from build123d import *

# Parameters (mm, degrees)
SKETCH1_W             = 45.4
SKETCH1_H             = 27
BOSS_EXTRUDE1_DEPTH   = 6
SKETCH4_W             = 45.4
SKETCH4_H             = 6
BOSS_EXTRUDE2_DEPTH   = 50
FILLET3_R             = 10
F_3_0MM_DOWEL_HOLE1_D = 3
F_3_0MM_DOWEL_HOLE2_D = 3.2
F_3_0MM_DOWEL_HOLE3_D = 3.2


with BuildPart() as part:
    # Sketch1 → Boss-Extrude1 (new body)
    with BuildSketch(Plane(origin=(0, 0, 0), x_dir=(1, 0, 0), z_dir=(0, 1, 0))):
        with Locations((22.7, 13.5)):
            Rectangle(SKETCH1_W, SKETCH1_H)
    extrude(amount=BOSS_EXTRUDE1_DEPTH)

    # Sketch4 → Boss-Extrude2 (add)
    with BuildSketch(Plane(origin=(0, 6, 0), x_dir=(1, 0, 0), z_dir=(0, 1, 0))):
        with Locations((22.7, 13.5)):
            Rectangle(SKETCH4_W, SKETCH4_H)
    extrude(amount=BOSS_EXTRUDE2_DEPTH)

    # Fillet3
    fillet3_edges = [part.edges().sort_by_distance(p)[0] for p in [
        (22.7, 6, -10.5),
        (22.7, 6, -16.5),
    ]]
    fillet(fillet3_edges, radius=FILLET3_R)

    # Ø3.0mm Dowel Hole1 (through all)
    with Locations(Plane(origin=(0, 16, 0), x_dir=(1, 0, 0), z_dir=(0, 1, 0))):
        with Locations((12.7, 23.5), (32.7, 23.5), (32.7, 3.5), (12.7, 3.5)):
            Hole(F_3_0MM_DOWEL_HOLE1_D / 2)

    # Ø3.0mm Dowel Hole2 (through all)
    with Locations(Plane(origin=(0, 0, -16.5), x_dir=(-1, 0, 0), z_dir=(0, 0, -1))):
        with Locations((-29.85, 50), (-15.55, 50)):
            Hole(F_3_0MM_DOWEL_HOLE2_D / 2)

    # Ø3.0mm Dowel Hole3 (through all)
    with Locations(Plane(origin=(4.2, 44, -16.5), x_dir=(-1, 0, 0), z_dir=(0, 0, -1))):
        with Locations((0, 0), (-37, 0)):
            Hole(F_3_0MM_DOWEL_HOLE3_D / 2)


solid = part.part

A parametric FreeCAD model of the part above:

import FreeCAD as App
import Part
import Sketcher

V = App.Vector


def edges_at(feature, points):
    """Names of the edges that pass closest to the given points."""
    edges = feature.Shape.Edges
    near = lambda p: min(range(len(edges)), key=lambda i: edges[i].distToShape(Part.Vertex(*p))[0])
    return sorted({f"Edge{near(p) + 1}" for p in points})

doc = App.newDocument("Part")
body = doc.addObject("PartDesign::Body", "Body")

# Sketch on XZ plane
sketch1 = body.newObject("Sketcher::SketchObject", "Sketch")
sketch1.AttachmentSupport = (doc.getObject("XZ_Plane"), [""])
sketch1.MapMode = "FlatFace"
sketch1.addGeometry([
    Part.LineSegment(V(0, -27, 0), V(0, 0, 0)),
    Part.LineSegment(V(0, 0, 0), V(45, 0, 0)),
    Part.LineSegment(V(45, 0, 0), V(45, -27, 0)),
    Part.LineSegment(V(45, -27, 0), V(0, -27, 0)),
], False)
sketch1.addConstraint([
    Sketcher.Constraint("Coincident", 0, 2, 1, 1),
    Sketcher.Constraint("Coincident", 1, 2, 2, 1),
    Sketcher.Constraint("Coincident", 2, 2, 3, 1),
    Sketcher.Constraint("Coincident", 3, 2, 0, 1),
    Sketcher.Constraint("Vertical", 0),
    Sketcher.Constraint("Horizontal", 1),
    Sketcher.Constraint("Vertical", 2),
    Sketcher.Constraint("Horizontal", 3),
    Sketcher.Constraint("Coincident", 0, 2, -1, 1),
    Sketcher.Constraint("DistanceY", 0, 1, 0, 2, 27.0),
    Sketcher.Constraint("DistanceX", 1, 1, 1, 2, 45.4),
])
pad1 = body.newObject("PartDesign::Pad", "Pad")
pad1.Profile = sketch1
pad1.Length = 6
pad1.Reversed = True

# Sketch on XZ plane
sketch2 = body.newObject("Sketcher::SketchObject", "Sketch001")
sketch2.AttachmentSupport = (doc.getObject("XZ_Plane"), [""])
sketch2.MapMode = "FlatFace"
sketch2.AttachmentOffset = App.Placement(V(0, 0, -6), App.Rotation())
sketch2.addGeometry([
    Part.LineSegment(V(0, -16, 0), V(0, -10, 0)),
    Part.LineSegment(V(0, -10, 0), V(45, -10, 0)),
    Part.LineSegment(V(45, -10, 0), V(45, -16, 0)),
    Part.LineSegment(V(45, -16, 0), V(0, -16, 0)),
], False)
sketch2.addConstraint([
    Sketcher.Constraint("Coincident", 0, 2, 1, 1),
    Sketcher.Constraint("Coincident", 1, 2, 2, 1),
    Sketcher.Constraint("Coincident", 2, 2, 3, 1),
    Sketcher.Constraint("Coincident", 3, 2, 0, 1),
    Sketcher.Constraint("Vertical", 0),
    Sketcher.Constraint("Horizontal", 1),
    Sketcher.Constraint("Vertical", 2),
    Sketcher.Constraint("Horizontal", 3),
    Sketcher.Constraint("PointOnObject", 0, 2, -2),
    Sketcher.Constraint("DistanceY", 0, 1, 0, 2, 6.0),
    Sketcher.Constraint("DistanceX", 1, 1, 1, 2, 45.4),
    Sketcher.Constraint("DistanceY", 0, 2, -1, 1, 10.5),
])
pad2 = body.newObject("PartDesign::Pad", "Pad001")
pad2.Profile = sketch2
pad2.Length = 50
pad2.Reversed = True
doc.recompute()

fillet = body.newObject("PartDesign::Fillet", "Fillet")
fillet.Base = (pad2, edges_at(pad2, [(22.7, 6, -10.5), (22.7, 6, -16.5)]))
fillet.Radius = 10

# Sketch on XZ plane
sketch3 = body.newObject("Sketcher::SketchObject", "Sketch002")
sketch3.AttachmentSupport = (doc.getObject("XZ_Plane"), [""])
sketch3.MapMode = "FlatFace"
sketch3.AttachmentOffset = App.Placement(V(0, 0, -16), App.Rotation())
sketch3.addGeometry([
    Part.Circle(V(12.7, -23.5, 0), V(0, 0, 1), 1.5),
    Part.Circle(V(32.7, -23.5, 0), V(0, 0, 1), 1.5),
    Part.Circle(V(32.7, -3.5, 0), V(0, 0, 1), 1.5),
    Part.Circle(V(12.7, -3.5, 0), V(0, 0, 1), 1.5),
], False)
sketch3.addConstraint([
    Sketcher.Constraint("Equal", 0, 1),
    Sketcher.Constraint("Equal", 1, 2),
    Sketcher.Constraint("Equal", 2, 3),
    Sketcher.Constraint("Horizontal", 0, 3, 1, 3),
    Sketcher.Constraint("Horizontal", 2, 3, 3, 3),
    Sketcher.Constraint("Vertical", 1, 3, 2, 3),
    Sketcher.Constraint("Vertical", 0, 3, 3, 3),
    Sketcher.Constraint("Diameter", 0, 3.0),
    Sketcher.Constraint("DistanceX", 0, 3, 1, 3, 20.0),
    Sketcher.Constraint("DistanceY", 1, 3, 2, 3, 20.0),
    Sketcher.Constraint("DistanceX", -1, 1, 0, 3, 12.7),
    Sketcher.Constraint("DistanceY", 0, 3, -1, 1, 23.5),
])
doc.recompute()
hole = body.newObject("PartDesign::Hole", "Hole")
hole.Profile = sketch3
hole.ThreadType = "None"
hole.Diameter = 3
hole.DepthType = "ThroughAll"
hole.Reversed = True

# Sketch on XY plane
sketch4 = body.newObject("Sketcher::SketchObject", "Sketch003")
sketch4.AttachmentSupport = (doc.getObject("XY_Plane"), [""])
sketch4.MapMode = "FlatFace"
sketch4.AttachmentOffset = App.Placement(V(0, 0, -16.5), App.Rotation())
sketch4.addGeometry([
    Part.Circle(V(29.9, 50, 0), V(0, 0, 1), 1.6),
    Part.Circle(V(15.6, 50, 0), V(0, 0, 1), 1.6),
], False)
sketch4.addConstraint([
    Sketcher.Constraint("Equal", 0, 1),
    Sketcher.Constraint("Horizontal", 0, 3, 1, 3),
    Sketcher.Constraint("Diameter", 0, 3.2),
    Sketcher.Constraint("DistanceY", -1, 1, 0, 3, 50.0),
    Sketcher.Constraint("DistanceX", 1, 3, 0, 3, 14.3),
    Sketcher.Constraint("DistanceX", -1, 1, 0, 3, 29.85),
])
doc.recompute()
hole2 = body.newObject("PartDesign::Hole", "Hole001")
hole2.Profile = sketch4
hole2.ThreadType = "None"
hole2.Diameter = 3.2
hole2.DepthType = "ThroughAll"
hole2.Reversed = True

# Sketch on XY plane
sketch5 = body.newObject("Sketcher::SketchObject", "Sketch004")
sketch5.AttachmentSupport = (doc.getObject("XY_Plane"), [""])
sketch5.MapMode = "FlatFace"
sketch5.AttachmentOffset = App.Placement(V(0, 0, -16.5), App.Rotation())
sketch5.addGeometry([
    Part.Circle(V(4.2, 44, 0), V(0, 0, 1), 1.6),
    Part.Circle(V(41.2, 44, 0), V(0, 0, 1), 1.6),
], False)
sketch5.addConstraint([
    Sketcher.Constraint("Equal", 0, 1),
    Sketcher.Constraint("Horizontal", 0, 3, 1, 3),
    Sketcher.Constraint("Diameter", 0, 3.2),
    Sketcher.Constraint("DistanceY", -1, 1, 0, 3, 44.0),
    Sketcher.Constraint("DistanceX", 0, 3, 1, 3, 37.0),
    Sketcher.Constraint("DistanceX", -1, 1, 0, 3, 4.2),
])
doc.recompute()
hole3 = body.newObject("PartDesign::Hole", "Hole002")
hole3.Profile = sketch5
hole3.ThreadType = "None"
hole3.Diameter = 3.2
hole3.DepthType = "ThroughAll"
hole3.Reversed = True

doc.recompute()
